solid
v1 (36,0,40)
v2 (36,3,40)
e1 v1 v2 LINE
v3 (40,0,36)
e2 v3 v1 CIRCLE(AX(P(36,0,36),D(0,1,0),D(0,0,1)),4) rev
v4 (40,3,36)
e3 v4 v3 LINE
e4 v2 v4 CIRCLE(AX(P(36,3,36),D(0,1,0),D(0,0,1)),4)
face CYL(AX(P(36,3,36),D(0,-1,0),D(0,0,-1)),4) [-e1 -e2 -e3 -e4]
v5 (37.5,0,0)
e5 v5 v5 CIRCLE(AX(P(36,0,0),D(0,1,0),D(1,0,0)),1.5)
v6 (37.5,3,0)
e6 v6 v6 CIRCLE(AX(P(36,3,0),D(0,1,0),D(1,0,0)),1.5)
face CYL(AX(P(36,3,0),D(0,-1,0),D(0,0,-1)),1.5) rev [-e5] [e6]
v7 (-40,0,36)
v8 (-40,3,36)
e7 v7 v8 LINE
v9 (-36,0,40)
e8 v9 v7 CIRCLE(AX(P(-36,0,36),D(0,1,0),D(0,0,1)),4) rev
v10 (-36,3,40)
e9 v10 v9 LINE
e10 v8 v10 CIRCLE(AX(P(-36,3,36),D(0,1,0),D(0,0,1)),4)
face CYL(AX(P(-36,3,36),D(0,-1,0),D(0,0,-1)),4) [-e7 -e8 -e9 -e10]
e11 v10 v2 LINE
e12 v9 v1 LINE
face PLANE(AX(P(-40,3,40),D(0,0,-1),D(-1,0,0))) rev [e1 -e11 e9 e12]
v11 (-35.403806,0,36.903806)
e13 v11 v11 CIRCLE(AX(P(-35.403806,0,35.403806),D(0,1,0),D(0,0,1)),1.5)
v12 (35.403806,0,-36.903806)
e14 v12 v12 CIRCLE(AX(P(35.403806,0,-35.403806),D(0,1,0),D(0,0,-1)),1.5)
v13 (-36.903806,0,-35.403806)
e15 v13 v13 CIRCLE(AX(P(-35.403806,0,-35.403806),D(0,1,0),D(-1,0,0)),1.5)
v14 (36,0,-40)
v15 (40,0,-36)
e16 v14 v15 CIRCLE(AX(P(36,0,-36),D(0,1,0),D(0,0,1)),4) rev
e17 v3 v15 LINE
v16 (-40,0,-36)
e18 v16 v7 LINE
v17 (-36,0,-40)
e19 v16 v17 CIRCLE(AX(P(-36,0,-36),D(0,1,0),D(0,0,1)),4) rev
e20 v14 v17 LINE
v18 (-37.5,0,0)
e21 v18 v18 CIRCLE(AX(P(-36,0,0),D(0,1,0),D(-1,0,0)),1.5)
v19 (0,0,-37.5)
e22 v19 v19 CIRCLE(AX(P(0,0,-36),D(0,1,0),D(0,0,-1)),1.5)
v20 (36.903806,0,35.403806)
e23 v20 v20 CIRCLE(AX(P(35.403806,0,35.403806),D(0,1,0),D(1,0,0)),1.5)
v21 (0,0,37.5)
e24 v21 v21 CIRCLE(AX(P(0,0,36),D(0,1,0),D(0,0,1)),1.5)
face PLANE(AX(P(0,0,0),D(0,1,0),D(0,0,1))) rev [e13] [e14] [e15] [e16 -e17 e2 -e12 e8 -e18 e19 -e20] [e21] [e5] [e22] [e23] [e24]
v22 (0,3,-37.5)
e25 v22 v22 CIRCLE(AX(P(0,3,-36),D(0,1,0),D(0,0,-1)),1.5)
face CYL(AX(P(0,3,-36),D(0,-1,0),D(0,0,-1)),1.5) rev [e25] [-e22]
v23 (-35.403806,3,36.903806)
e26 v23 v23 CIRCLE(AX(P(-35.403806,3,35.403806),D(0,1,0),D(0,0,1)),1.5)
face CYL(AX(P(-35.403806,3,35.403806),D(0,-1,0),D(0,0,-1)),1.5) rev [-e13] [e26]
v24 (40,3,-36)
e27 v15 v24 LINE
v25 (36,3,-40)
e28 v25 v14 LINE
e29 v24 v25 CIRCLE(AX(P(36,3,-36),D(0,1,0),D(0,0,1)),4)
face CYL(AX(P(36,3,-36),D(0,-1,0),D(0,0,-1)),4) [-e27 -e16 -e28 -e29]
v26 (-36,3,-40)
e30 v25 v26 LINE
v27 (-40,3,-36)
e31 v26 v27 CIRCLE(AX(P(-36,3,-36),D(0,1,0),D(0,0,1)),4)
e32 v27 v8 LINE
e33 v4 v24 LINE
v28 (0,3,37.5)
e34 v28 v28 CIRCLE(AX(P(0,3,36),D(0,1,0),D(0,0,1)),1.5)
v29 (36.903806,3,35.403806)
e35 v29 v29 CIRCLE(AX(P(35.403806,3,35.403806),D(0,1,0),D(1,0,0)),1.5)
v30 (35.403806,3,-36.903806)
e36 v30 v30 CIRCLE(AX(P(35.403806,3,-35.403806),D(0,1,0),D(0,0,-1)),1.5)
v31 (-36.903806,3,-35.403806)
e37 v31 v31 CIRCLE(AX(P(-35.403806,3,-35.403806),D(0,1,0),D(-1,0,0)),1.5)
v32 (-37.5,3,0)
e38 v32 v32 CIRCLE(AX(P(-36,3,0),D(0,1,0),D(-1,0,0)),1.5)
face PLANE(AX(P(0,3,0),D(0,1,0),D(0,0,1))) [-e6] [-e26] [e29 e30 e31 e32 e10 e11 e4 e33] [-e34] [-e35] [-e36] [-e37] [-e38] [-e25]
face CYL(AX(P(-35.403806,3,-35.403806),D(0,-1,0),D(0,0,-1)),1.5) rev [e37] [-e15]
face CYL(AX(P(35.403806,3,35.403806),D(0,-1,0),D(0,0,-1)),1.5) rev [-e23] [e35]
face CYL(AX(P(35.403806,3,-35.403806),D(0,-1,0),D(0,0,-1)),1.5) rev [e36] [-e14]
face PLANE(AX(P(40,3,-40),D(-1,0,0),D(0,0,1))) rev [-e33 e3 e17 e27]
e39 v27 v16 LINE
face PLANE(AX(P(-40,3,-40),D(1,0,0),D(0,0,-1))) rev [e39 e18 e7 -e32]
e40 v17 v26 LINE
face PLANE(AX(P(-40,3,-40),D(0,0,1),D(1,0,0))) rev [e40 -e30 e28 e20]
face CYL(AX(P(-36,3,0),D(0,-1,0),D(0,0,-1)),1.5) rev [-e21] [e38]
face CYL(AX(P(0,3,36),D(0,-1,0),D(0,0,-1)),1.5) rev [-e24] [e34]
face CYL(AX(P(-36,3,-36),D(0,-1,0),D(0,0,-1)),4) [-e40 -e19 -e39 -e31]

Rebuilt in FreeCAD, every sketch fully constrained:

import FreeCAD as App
import Part
import Sketcher


def edges_at(feature, points):
    """Names of the edges that pass closest to the given points."""
    edges = feature.Shape.Edges
    near = lambda p: min(range(len(edges)), key=lambda i: edges[i].distToShape(Part.Vertex(*p))[0])
    return sorted({f"Edge{near(p) + 1}" for p in points})

doc = App.newDocument("Part")
params = doc.addObject("Spreadsheet::Sheet", "Params")
for row, (alias, value) in enumerate([
    ("sketch1_width", "80 mm"),
    ("pad1_length", "3 mm"),
    ("sketch2_diameter", "3 mm"),
    ("pocket1_length", "3 mm"),
    ("fillet_radius", "4 mm"),
], start=1):
    params.set(f"A{row}", alias)
    params.set(f"B{row}", "=" + value)
    params.setAlias(f"B{row}", alias)

body = doc.addObject("PartDesign::Body", "Body")

sketch1 = doc.addObject("Sketcher::SketchObject", "Sketch")
body.addObject(sketch1)
sketch1.AttachmentSupport = (doc.XZ_Plane, [""])
sketch1.MapMode = "FlatFace"
sketch1.addGeometry([
    Part.LineSegment(App.Vector(-40, -40, 0), App.Vector(-40, 40, 0)),
    Part.LineSegment(App.Vector(-40, 40, 0), App.Vector(40, 40, 0)),
    Part.LineSegment(App.Vector(40, 40, 0), App.Vector(40, -40, 0)),
    Part.LineSegment(App.Vector(40, -40, 0), App.Vector(-40, -40, 0)),
], False)
sketch1.addConstraint([
    Sketcher.Constraint("Coincident", 0, 2, 1, 1),
    Sketcher.Constraint("Coincident", 1, 2, 2, 1),
    Sketcher.Constraint("Coincident", 2, 2, 3, 1),
    Sketcher.Constraint("Coincident", 3, 2, 0, 1),
    Sketcher.Constraint("Vertical", 0),
    Sketcher.Constraint("Horizontal", 1),
    Sketcher.Constraint("Vertical", 2),
    Sketcher.Constraint("Horizontal", 3),
    Sketcher.Constraint("Symmetric", 0, 2, 2, 2, -1, 1),
    Sketcher.Constraint("Equal", 3, 0),
    Sketcher.Constraint("DistanceX", 1, 1, 1, 2, 80.0),
])
sketch1.setExpression("Constraints[10]", "Params.sketch1_width")
pad1 = doc.addObject("PartDesign::Pad", "Pad")
body.addObject(pad1)
pad1.Profile = sketch1
pad1.setExpression("Length", "Params.pad1_length")
pad1.Reversed = True

sketch2 = doc.addObject("Sketcher::SketchObject", "Sketch001")
body.addObject(sketch2)
sketch2.AttachmentSupport = (doc.XZ_Plane, [""])
sketch2.MapMode = "FlatFace"
sketch2.addGeometry([
    Part.Circle(App.Vector(0, 36, 0), App.Vector(0, 0, 1), 1.5),
    Part.Circle(App.Vector(-35.403806, 35.403806, 0), App.Vector(0, 0, 1), 1.5),
], False)
sketch2.addConstraint([
    Sketcher.Constraint("Equal", 0, 1),
    Sketcher.Constraint("PointOnObject", 0, 3, -2),
    Sketcher.Constraint("Diameter", 0, 3.0),
    Sketcher.Constraint("DistanceY", -1, 1, 0, 3, 36.0),
    Sketcher.Constraint("DistanceX", 1, 3, -1, 1, 35.403806),
    Sketcher.Constraint("DistanceY", -1, 1, 1, 3, 35.403806),
])
sketch2.setExpression("Constraints[2]", "Params.sketch2_diameter")
pocket1 = doc.addObject("PartDesign::Pocket", "Pocket")
body.addObject(pocket1)
pocket1.Profile = sketch2
pocket1.setExpression("Length", "Params.pocket1_length")
doc.recompute()

polarpattern = doc.addObject("PartDesign::PolarPattern", "PolarPattern")
body.addObject(polarpattern)
polarpattern.Originals = [pocket1]
polarpattern.Axis = (doc.Y_Axis, [""])
polarpattern.Angle = 360
polarpattern.Occurrences = 4
body.Tip = polarpattern
doc.recompute()

fillet = doc.addObject("PartDesign::Fillet", "Fillet")
body.addObject(fillet)
fillet.Base = (polarpattern, edges_at(polarpattern, [
    (40, 1.5, 40),
    (-40, 1.5, 40),
    (-40, 1.5, -40),
    (40, 1.5, -40),
]))
fillet.setExpression("Radius", "Params.fillet_radius")

doc.recompute()
